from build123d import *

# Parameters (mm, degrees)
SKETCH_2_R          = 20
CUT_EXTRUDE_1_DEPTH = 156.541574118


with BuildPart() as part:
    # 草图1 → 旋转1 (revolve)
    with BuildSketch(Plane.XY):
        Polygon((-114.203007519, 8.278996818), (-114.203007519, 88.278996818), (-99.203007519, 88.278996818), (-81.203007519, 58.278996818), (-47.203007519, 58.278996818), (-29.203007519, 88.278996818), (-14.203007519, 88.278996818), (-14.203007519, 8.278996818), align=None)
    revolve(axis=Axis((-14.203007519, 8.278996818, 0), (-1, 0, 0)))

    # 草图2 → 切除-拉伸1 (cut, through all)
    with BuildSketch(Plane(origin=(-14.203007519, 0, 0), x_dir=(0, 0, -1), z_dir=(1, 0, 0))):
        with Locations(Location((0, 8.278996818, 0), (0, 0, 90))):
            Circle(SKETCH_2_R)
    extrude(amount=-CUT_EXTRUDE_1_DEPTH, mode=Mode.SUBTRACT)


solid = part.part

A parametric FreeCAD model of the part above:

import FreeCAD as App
import Part
import Sketcher

V = App.Vector
Q = App.Units.Quantity

doc = App.newDocument("Part")
body = doc.addObject("PartDesign::Body", "Body")

sketch1 = body.newObject("Sketcher::SketchObject", "Sketch")
sketch1.AttachmentSupport = (doc.getObject("XY_Plane"), [""])
sketch1.MapMode = "FlatFace"
sketch1.addGeometry(Part.LineSegment(V(-114.203008, 88.278997, 0), V(-114.203008, 8.278997, 0)), False)
sketch1.addGeometry(Part.LineSegment(V(-114.203008, 8.278997, 0), V(-14.203008, 8.278997, 0)), False)
sketch1.addGeometry(Part.LineSegment(V(-14.203008, 8.278997, 0), V(-14.203008, 88.278997, 0)), False)
sketch1.addGeometry(Part.LineSegment(V(-14.203008, 88.278997, 0), V(-29.203008, 88.278997, 0)), False)
sketch1.addGeometry(Part.LineSegment(V(-29.203008, 88.278997, 0), V(-47.203008, 58.278997, 0)), False)
sketch1.addGeometry(Part.LineSegment(V(-47.203008, 58.278997, 0), V(-81.203008, 58.278997, 0)), False)
sketch1.addGeometry(Part.LineSegment(V(-81.203008, 58.278997, 0), V(-99.203008, 88.278997, 0)), False)
sketch1.addGeometry(Part.LineSegment(V(-99.203008, 88.278997, 0), V(-114.203008, 88.278997, 0)), False)
sketch1.addGeometry(Part.LineSegment(V(-14.203008, 8.278997, 0), V(-114.203008, 8.278997, 0)), True)
sketch1.addConstraint(Sketcher.Constraint("Coincident", 0, 2, 1, 1))
sketch1.addConstraint(Sketcher.Constraint("Coincident", 1, 2, 2, 1))
sketch1.addConstraint(Sketcher.Constraint("Coincident", 2, 2, 3, 1))
sketch1.addConstraint(Sketcher.Constraint("Coincident", 3, 2, 4, 1))
sketch1.addConstraint(Sketcher.Constraint("Coincident", 4, 2, 5, 1))
sketch1.addConstraint(Sketcher.Constraint("Coincident", 5, 2, 6, 1))
sketch1.addConstraint(Sketcher.Constraint("Coincident", 6, 2, 7, 1))
sketch1.addConstraint(Sketcher.Constraint("Coincident", 7, 2, 0, 1))
sketch1.addConstraint(Sketcher.Constraint("Vertical", 0))
sketch1.addConstraint(Sketcher.Constraint("Horizontal", 1))
sketch1.addConstraint(Sketcher.Constraint("Vertical", 2))
sketch1.addConstraint(Sketcher.Constraint("Horizontal", 3))
sketch1.addConstraint(Sketcher.Constraint("Horizontal", 5))
sketch1.addConstraint(Sketcher.Constraint("Horizontal", 7))
sketch1.addConstraint(Sketcher.Constraint("Horizontal", 8))
sketch1.addConstraint(Sketcher.Constraint("Coincident", 8, 1, 1, 2))
sketch1.addConstraint(Sketcher.Constraint("Horizontal", 3, 2, 6, 2))
sketch1.addConstraint(Sketcher.Constraint("Vertical", 7, 2, 8, 2))
sketch1.addConstraint(Sketcher.Constraint("Equal", 3, 7))
sketch1.addConstraint(Sketcher.Constraint("Equal", 4, 6))
sketch1.addConstraint(Sketcher.Constraint("DistanceX", 1, 1, 1, 2, Q("100 mm")))
sketch1.addConstraint(Sketcher.Constraint("DistanceX", 3, 2, 3, 1, Q("15 mm")))
sketch1.addConstraint(Sketcher.Constraint("DistanceX", 5, 2, 5, 1, Q("34 mm")))
sketch1.addConstraint(Sketcher.Constraint("DistanceY", 0, 2, 0, 1, Q("80 mm")))
sketch1.addConstraint(Sketcher.Constraint("DistanceY", 4, 2, 3, 2, Q("30 mm")))
sketch1.addConstraint(Sketcher.Constraint("DistanceX", 0, 2, -1, 1, Q("114.203008 mm")))
sketch1.addConstraint(Sketcher.Constraint("DistanceY", -1, 1, 0, 2, Q("8.278997 mm")))
revolution = body.newObject("PartDesign::Revolution", "Revolution")
revolution.Profile = sketch1
revolution.ReferenceAxis = (sketch1, ["Axis0"])
revolution.Angle = 360

sketch2 = body.newObject("Sketcher::SketchObject", "Sketch001")
sketch2.AttachmentSupport = (doc.getObject("YZ_Plane"), [""])
sketch2.MapMode = "FlatFace"
sketch2.AttachmentOffset = App.Placement(V(0, 0, -14.203008), App.Rotation())
sketch2.addGeometry(Part.Circle(V(8.278997, 0, 0), V(0, 0, 1), 20), False)
sketch2.addConstraint(Sketcher.Constraint("PointOnObject", 0, 3, -1))
sketch2.addConstraint(Sketcher.Constraint("Diameter", 0, Q("40 mm")))
sketch2.addConstraint(Sketcher.Constraint("DistanceX", -1, 1, 0, 3, Q("8.278997 mm")))
pocket1 = body.newObject("PartDesign::Pocket", "Pocket")
pocket1.Profile = sketch2
pocket1.Type = "ThroughAll"

doc.recompute()
